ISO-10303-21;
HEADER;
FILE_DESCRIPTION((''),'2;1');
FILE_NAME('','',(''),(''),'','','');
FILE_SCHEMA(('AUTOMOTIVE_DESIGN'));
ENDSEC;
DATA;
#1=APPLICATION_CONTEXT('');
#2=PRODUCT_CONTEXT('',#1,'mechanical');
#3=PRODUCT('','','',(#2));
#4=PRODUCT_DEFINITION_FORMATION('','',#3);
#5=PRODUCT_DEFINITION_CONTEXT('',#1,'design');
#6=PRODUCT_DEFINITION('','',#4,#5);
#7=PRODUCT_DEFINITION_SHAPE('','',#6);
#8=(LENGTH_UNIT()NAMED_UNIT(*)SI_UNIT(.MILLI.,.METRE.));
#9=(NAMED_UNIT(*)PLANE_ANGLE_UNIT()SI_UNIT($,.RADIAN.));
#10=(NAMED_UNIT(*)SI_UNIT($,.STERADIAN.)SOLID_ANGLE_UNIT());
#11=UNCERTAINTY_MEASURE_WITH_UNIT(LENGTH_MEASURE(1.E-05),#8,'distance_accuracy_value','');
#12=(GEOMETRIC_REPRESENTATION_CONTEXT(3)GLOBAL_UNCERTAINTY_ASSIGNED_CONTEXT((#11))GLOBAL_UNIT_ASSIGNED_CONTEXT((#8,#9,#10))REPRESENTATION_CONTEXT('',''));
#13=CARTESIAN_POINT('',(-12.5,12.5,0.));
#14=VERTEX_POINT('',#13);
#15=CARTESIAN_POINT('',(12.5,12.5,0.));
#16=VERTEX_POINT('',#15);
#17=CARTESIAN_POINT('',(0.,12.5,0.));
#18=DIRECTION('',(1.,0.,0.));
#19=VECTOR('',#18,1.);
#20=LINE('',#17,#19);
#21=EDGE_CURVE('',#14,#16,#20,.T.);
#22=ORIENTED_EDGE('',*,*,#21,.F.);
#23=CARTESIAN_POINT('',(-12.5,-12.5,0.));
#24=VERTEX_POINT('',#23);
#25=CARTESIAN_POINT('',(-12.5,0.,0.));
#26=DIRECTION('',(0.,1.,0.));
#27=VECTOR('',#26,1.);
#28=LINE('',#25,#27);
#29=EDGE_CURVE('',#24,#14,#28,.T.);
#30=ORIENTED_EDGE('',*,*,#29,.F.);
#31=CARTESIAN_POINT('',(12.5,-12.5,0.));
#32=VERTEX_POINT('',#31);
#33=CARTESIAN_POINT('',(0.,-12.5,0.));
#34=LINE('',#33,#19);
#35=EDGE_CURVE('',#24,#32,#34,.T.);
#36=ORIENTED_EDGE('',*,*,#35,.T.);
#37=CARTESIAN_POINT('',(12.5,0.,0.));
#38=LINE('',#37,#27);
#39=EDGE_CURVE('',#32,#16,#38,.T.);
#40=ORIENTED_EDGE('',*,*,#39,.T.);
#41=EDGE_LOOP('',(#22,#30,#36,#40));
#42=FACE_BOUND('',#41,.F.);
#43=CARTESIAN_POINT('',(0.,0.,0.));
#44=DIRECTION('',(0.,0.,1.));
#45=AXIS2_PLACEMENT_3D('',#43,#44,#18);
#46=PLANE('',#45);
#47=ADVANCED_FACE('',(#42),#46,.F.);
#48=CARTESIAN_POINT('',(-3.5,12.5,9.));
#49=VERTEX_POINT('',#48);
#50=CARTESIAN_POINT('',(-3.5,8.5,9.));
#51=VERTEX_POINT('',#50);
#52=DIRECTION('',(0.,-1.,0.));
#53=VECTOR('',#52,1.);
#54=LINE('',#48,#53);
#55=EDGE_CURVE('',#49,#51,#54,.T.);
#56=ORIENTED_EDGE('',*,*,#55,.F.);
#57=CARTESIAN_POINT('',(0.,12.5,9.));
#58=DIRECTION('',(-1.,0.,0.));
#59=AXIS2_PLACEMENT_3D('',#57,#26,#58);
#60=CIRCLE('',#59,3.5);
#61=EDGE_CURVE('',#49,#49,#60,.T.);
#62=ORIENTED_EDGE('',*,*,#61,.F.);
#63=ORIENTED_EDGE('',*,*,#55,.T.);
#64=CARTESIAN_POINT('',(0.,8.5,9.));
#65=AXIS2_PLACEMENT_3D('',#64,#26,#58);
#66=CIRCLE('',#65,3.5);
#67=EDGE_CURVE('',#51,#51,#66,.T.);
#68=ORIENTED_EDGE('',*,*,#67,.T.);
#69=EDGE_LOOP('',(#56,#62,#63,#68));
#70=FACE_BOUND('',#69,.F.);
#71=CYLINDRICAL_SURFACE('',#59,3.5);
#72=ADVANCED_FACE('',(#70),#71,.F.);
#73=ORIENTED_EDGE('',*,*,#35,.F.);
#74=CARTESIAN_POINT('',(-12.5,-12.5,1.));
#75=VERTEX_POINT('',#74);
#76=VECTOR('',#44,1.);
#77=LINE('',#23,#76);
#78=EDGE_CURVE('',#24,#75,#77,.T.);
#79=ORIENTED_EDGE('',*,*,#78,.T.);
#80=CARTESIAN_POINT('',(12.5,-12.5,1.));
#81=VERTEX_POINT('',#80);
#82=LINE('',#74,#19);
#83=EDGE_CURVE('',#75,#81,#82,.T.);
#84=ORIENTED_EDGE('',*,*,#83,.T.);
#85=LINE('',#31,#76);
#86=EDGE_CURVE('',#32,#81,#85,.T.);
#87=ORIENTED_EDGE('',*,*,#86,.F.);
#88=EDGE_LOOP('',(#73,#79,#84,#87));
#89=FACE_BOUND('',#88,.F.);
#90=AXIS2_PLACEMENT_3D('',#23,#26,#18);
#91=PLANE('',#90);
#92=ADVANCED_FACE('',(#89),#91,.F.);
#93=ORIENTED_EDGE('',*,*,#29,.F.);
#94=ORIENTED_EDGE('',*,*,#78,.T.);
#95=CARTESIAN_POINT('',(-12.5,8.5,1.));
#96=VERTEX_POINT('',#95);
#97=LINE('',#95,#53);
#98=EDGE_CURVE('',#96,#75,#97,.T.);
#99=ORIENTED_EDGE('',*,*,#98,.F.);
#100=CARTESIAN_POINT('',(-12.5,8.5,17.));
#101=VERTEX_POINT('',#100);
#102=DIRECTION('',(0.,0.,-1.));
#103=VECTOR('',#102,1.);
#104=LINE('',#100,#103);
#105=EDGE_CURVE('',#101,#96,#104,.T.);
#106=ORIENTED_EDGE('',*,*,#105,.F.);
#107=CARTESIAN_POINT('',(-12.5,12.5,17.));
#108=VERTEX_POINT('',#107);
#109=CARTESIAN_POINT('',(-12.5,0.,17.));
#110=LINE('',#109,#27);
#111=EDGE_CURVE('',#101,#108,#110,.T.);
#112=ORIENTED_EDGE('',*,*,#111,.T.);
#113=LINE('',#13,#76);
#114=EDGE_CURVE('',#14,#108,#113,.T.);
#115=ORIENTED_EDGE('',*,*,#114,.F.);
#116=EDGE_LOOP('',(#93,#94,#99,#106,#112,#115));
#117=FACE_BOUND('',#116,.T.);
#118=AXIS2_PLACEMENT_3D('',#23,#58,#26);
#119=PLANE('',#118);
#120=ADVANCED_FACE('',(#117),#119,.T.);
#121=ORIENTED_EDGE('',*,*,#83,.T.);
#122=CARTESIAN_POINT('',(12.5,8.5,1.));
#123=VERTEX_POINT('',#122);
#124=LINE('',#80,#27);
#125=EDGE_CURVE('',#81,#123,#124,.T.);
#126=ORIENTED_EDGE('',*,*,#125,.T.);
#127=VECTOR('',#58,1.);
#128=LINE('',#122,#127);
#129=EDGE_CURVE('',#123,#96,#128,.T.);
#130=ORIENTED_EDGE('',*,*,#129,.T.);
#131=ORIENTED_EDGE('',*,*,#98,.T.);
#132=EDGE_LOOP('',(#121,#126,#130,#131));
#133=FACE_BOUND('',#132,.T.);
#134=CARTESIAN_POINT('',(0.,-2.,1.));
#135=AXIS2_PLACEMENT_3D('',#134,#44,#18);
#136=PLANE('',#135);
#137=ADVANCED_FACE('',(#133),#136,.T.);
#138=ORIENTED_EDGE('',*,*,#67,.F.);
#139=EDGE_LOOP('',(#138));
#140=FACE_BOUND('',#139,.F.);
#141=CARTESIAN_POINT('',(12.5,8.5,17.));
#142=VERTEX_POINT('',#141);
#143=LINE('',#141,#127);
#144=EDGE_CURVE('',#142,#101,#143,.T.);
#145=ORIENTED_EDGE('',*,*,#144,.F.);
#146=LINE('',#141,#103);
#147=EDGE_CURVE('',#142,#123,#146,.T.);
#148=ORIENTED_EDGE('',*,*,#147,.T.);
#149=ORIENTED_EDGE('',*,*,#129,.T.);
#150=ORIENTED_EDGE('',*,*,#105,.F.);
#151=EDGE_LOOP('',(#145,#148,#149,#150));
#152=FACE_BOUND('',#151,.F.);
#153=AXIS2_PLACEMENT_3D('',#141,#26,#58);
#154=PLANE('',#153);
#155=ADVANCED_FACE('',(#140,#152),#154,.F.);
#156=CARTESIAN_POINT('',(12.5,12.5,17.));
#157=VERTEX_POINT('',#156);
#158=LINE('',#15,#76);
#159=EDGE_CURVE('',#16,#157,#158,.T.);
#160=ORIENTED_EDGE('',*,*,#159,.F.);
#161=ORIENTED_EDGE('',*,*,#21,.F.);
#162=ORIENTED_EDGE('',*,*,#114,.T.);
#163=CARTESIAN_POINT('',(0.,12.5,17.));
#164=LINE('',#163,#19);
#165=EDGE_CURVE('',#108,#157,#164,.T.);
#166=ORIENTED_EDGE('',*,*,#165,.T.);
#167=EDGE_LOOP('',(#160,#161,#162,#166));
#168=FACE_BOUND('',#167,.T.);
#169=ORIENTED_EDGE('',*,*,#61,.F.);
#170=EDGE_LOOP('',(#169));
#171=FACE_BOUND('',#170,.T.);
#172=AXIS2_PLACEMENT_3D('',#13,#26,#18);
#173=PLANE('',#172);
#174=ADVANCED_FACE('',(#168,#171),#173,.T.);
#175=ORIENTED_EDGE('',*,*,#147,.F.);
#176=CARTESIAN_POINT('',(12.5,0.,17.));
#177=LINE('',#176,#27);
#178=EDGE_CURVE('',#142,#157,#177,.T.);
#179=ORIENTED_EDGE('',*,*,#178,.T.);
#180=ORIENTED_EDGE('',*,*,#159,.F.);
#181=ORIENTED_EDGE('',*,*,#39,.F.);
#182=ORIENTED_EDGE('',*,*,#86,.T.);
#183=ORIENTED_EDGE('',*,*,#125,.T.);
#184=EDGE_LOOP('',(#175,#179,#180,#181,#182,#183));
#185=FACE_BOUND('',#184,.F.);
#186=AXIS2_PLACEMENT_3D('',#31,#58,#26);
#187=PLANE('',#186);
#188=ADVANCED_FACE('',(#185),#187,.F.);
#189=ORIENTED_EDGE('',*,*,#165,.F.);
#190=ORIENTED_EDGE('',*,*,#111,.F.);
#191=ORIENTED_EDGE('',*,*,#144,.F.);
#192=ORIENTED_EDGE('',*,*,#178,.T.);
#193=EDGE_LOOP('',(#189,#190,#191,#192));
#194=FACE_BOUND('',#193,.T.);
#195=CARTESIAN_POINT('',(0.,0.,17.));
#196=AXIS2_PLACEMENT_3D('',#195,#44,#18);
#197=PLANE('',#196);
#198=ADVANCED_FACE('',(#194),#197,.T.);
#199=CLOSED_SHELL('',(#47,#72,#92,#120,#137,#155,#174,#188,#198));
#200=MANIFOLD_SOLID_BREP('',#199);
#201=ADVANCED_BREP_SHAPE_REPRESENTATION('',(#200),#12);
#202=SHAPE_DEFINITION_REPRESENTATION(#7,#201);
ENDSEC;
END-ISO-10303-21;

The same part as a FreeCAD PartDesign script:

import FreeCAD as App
import Part
import Sketcher

V = App.Vector

doc = App.newDocument("Part")
body = doc.addObject("PartDesign::Body", "Body")

# Sketch on XY plane
sketch1 = doc.addObject("Sketcher::SketchObject", "Sketch")
body.addObject(sketch1)
sketch1.AttachmentSupport = (doc.XY_Plane, [""])
sketch1.MapMode = "FlatFace"
sketch1.addGeometry([
    Part.LineSegment(V(-12.5, 12.5, 0), V(-12.5, -12.5, 0)),
    Part.LineSegment(V(-12.5, -12.5, 0), V(12.5, -12.5, 0)),
    Part.LineSegment(V(12.5, -12.5, 0), V(12.5, 12.5, 0)),
    Part.LineSegment(V(12.5, 12.5, 0), V(-12.5, 12.5, 0)),
], False)
sketch1.addConstraint([
    Sketcher.Constraint("Coincident", 0, 2, 1, 1),
    Sketcher.Constraint("Coincident", 1, 2, 2, 1),
    Sketcher.Constraint("Coincident", 2, 2, 3, 1),
    Sketcher.Constraint("Coincident", 3, 2, 0, 1),
    Sketcher.Constraint("Vertical", 0),
    Sketcher.Constraint("Horizontal", 1),
    Sketcher.Constraint("Vertical", 2),
    Sketcher.Constraint("Horizontal", 3),
    Sketcher.Constraint("Symmetric", 0, 2, 2, 2, -1, 1),
    Sketcher.Constraint("Equal", 3, 0),
    Sketcher.Constraint("DistanceX", 1, 1, 1, 2, 25.0),
])
pad1 = doc.addObject("PartDesign::Pad", "Pad")
body.addObject(pad1)
pad1.Profile = sketch1
pad1.Length = 17

# Sketch on XY plane
sketch2 = doc.addObject("Sketcher::SketchObject", "Sketch001")
body.addObject(sketch2)
sketch2.AttachmentSupport = (doc.XY_Plane, [""])
sketch2.MapMode = "FlatFace"
sketch2.AttachmentOffset = App.Placement(V(0, 0, 17), App.Rotation())
sketch2.addGeometry([
    Part.LineSegment(V(-12.5, -12.5, 0), V(12.5, -12.5, 0)),
    Part.LineSegment(V(12.5, -12.5, 0), V(12.5, 8.5, 0)),
    Part.LineSegment(V(12.5, 8.5, 0), V(-12.5, 8.5, 0)),
    Part.LineSegment(V(-12.5, 8.5, 0), V(-12.5, -12.5, 0)),
], False)
sketch2.addConstraint([
    Sketcher.Constraint("Coincident", 0, 2, 1, 1),
    Sketcher.Constraint("Coincident", 1, 2, 2, 1),
    Sketcher.Constraint("Coincident", 2, 2, 3, 1),
    Sketcher.Constraint("Coincident", 3, 2, 0, 1),
    Sketcher.Constraint("Horizontal", 0),
    Sketcher.Constraint("Vertical", 1),
    Sketcher.Constraint("Horizontal", 2),
    Sketcher.Constraint("Vertical", 3),
    Sketcher.Constraint("DistanceX", 0, 1, 0, 2, 25.0),
    Sketcher.Constraint("DistanceY", 1, 1, 1, 2, 21.0),
    Sketcher.Constraint("DistanceX", -1, 1, 0, 2, 12.5),
    Sketcher.Constraint("DistanceY", 0, 2, -1, 1, 12.5),
])
pocket1 = doc.addObject("PartDesign::Pocket", "Pocket")
body.addObject(pocket1)
pocket1.Profile = sketch2
pocket1.Length = 16

# Sketch on XZ plane
sketch3 = doc.addObject("Sketcher::SketchObject", "Sketch002")
body.addObject(sketch3)
sketch3.AttachmentSupport = (doc.XZ_Plane, [""])
sketch3.MapMode = "FlatFace"
sketch3.AttachmentOffset = App.Placement(V(0, 0, -12.5), App.Rotation())
sketch3.addGeometry(Part.Circle(V(0, 9, 0), V(0, 0, 1), 3.5), False)
sketch3.addConstraint([
    Sketcher.Constraint("PointOnObject", 0, 3, -2),
    Sketcher.Constraint("Diameter", 0, 7.0),
    Sketcher.Constraint("DistanceY", -1, 1, 0, 3, 9.0),
])
pocket2 = doc.addObject("PartDesign::Pocket", "Pocket001")
body.addObject(pocket2)
pocket2.Profile = sketch3
pocket2.Type = "ThroughAll"
pocket2.Reversed = True

doc.recompute()
